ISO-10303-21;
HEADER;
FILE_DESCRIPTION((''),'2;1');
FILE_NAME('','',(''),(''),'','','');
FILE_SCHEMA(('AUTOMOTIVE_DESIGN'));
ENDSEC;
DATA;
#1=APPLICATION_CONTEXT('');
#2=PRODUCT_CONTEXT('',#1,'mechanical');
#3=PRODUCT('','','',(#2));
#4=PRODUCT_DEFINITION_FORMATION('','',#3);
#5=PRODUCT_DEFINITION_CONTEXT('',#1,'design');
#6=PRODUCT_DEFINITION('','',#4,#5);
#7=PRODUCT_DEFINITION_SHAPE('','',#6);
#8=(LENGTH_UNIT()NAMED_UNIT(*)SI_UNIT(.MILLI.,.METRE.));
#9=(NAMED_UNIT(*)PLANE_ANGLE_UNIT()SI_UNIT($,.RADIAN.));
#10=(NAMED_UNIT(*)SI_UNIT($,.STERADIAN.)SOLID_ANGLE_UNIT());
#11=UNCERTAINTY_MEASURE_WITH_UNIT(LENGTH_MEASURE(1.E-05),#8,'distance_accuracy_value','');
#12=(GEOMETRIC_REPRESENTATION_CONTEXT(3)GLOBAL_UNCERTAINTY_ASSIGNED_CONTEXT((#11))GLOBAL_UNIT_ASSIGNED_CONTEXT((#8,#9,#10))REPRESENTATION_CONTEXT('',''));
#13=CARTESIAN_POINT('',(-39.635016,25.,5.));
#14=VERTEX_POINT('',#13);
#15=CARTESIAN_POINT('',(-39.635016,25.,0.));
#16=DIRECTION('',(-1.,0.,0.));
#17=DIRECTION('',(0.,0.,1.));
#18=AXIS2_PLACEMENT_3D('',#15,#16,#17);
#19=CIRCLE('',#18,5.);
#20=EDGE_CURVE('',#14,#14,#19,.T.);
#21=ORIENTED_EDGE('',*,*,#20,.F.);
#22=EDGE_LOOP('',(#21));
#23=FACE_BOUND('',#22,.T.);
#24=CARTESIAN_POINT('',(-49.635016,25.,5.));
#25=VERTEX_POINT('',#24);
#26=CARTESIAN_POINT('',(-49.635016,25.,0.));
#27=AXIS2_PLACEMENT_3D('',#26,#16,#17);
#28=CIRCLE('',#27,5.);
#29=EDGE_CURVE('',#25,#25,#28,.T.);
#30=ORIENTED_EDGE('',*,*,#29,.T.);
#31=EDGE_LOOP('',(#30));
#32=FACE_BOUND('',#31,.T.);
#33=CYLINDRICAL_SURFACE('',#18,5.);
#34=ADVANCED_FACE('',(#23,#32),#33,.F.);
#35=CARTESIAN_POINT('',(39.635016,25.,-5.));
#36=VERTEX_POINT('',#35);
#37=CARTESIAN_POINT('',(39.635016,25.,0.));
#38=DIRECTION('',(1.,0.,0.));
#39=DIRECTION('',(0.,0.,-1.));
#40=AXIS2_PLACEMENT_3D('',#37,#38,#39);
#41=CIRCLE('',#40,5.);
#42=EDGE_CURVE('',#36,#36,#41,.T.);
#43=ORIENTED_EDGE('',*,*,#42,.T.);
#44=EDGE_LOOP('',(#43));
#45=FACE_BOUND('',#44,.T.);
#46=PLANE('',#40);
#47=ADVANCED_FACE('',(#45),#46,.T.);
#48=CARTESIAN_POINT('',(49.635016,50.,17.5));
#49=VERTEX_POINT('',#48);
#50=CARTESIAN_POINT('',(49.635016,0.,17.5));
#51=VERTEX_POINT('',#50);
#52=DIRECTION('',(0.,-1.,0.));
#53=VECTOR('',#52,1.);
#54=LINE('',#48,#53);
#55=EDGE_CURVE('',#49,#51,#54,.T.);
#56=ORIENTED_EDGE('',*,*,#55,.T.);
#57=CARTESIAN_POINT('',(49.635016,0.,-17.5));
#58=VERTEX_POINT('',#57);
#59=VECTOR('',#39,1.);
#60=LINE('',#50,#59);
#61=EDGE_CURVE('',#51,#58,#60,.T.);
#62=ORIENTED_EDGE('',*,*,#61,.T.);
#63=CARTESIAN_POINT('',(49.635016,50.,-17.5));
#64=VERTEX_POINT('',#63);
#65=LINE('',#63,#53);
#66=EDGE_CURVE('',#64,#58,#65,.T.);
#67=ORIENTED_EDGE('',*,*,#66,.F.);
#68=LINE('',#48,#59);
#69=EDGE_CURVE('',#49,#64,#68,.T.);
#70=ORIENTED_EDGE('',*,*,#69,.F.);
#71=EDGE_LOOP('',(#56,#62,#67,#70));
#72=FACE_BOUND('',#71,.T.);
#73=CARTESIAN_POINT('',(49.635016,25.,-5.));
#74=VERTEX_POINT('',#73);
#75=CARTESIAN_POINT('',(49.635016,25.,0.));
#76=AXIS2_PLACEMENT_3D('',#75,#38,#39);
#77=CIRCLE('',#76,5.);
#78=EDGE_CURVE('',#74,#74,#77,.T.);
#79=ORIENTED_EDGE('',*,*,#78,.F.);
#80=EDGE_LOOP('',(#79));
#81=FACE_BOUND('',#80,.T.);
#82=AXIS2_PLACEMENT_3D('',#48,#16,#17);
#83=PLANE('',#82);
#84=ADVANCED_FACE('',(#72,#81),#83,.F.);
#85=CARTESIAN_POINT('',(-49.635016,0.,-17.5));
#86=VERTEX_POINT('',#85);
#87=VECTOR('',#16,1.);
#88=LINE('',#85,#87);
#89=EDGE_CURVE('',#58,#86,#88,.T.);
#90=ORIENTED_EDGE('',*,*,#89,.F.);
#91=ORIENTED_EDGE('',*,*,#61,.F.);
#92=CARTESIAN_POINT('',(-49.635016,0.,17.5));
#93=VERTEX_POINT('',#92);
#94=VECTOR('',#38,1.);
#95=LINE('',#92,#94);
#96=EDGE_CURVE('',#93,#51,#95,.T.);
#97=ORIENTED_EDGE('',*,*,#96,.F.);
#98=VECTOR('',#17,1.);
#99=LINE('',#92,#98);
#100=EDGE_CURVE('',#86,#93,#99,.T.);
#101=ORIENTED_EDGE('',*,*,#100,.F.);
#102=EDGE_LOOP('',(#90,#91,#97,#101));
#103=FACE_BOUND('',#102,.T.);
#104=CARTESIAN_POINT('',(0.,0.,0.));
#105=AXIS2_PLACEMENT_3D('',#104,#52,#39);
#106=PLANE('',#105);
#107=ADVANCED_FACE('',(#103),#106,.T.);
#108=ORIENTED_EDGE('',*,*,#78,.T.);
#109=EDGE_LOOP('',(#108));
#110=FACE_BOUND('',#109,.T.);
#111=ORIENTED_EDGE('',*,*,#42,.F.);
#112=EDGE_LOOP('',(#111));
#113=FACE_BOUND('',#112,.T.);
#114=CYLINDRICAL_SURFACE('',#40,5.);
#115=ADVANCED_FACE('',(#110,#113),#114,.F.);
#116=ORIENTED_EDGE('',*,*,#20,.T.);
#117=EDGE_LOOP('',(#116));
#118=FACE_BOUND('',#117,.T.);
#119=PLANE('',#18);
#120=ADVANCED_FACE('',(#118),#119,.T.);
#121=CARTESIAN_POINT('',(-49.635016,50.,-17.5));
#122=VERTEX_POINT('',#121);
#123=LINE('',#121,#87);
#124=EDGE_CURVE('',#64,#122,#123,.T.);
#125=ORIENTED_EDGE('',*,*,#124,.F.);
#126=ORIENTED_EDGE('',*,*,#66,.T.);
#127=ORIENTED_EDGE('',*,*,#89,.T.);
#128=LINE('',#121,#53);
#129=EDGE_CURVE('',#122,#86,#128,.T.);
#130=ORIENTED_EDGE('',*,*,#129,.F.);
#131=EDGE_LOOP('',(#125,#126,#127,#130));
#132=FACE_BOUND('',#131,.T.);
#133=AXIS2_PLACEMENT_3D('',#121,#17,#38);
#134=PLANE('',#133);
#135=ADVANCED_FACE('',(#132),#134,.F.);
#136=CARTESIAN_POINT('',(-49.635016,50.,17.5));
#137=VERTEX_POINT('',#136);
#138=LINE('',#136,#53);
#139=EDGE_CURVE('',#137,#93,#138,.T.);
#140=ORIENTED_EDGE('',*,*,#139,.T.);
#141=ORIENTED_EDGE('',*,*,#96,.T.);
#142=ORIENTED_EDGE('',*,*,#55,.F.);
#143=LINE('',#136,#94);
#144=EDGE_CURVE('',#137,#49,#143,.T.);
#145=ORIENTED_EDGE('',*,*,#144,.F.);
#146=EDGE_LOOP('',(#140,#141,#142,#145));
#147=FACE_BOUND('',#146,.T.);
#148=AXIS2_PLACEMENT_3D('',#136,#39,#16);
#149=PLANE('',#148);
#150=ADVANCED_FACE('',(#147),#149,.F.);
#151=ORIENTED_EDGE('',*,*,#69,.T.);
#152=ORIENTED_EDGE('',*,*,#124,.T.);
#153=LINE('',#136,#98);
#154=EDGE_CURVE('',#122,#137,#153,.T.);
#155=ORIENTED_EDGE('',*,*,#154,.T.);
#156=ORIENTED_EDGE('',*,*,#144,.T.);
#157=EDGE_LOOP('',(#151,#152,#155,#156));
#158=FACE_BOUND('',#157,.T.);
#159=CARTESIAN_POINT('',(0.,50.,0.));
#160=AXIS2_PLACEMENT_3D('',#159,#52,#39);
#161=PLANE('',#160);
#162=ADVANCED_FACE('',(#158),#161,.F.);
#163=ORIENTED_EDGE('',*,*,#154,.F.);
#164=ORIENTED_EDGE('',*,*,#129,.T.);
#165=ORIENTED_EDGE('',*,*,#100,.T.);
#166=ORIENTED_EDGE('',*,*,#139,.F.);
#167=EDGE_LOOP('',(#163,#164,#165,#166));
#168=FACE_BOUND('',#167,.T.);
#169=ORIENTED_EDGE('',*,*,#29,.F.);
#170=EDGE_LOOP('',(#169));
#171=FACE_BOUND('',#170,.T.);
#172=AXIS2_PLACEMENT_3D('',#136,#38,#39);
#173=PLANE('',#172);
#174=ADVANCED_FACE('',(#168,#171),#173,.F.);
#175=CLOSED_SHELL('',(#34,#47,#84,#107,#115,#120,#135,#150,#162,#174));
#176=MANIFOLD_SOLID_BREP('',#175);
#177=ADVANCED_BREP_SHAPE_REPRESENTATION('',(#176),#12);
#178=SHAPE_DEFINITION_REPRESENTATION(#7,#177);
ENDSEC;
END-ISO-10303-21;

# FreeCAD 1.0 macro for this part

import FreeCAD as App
import Part
import Sketcher
from FreeCAD import Vector
Q = App.Units.Quantity


def add_polygon(sketch, points):
    """Adds a closed chain of lines whose ends are joined by coincident constraints."""
    first, n = sketch.GeometryCount, len(points)
    for a, b in zip(points, points[1:] + points[:1]):
        sketch.addGeometry(Part.LineSegment(App.Vector(*a, 0), App.Vector(*b, 0)), False)
    for i in range(n):
        sketch.addConstraint(Sketcher.Constraint("Coincident", first + i, 2, first + (i + 1) % n, 1))

doc = App.newDocument("Part")
body = doc.addObject("PartDesign::Body", "Body")

# Sketch on XZ plane
sketch1 = body.newObject("Sketcher::SketchObject", "Sketch")
sketch1.AttachmentSupport = (doc.getObject("XZ_Plane"), [""])
sketch1.MapMode = "FlatFace"
add_polygon(sketch1, [(-50, -18), (-50, 18), (50, 18), (50, -18)])  # lines 0-3
sketch1.addConstraint([
    Sketcher.Constraint("Vertical", 0),
    Sketcher.Constraint("Horizontal", 1),
    Sketcher.Constraint("Vertical", 2),
    Sketcher.Constraint("Horizontal", 3),
    Sketcher.Constraint("Symmetric", 0, 2, 2, 2, -1, 1),
    Sketcher.Constraint("DistanceY", 0, 1, 0, 2, Q("35 mm")),
    Sketcher.Constraint("DistanceX", 1, 1, 1, 2, Q("99.270033 mm")),
])
pad1 = body.newObject("PartDesign::Pad", "Pad")
pad1.Profile = sketch1
pad1.Length = 50
pad1.Reversed = True

# Sketch on YZ plane
sketch2 = body.newObject("Sketcher::SketchObject", "Sketch001")
sketch2.AttachmentSupport = (doc.getObject("YZ_Plane"), [""])
sketch2.MapMode = "FlatFace"
sketch2.AttachmentOffset = App.Placement(Vector(0, 0, -49.635016), App.Rotation())
sketch2.addGeometry(Part.Circle(Vector(25, 0, 0), Vector(0, 0, 1), 5), False)
sketch2.addConstraint([
    Sketcher.Constraint("PointOnObject", 0, 3, -1),
    Sketcher.Constraint("Diameter", 0, Q("10 mm")),
    Sketcher.Constraint("DistanceX", -1, 1, 0, 3, Q("25 mm")),
])
pocket1 = body.newObject("PartDesign::Pocket", "Pocket")
pocket1.Profile = sketch2
pocket1.Length = 10
pocket1.Reversed = True

# Sketch on YZ plane
sketch3 = body.newObject("Sketcher::SketchObject", "Sketch002")
sketch3.AttachmentSupport = (doc.getObject("YZ_Plane"), [""])
sketch3.MapMode = "FlatFace"
sketch3.AttachmentOffset = App.Placement(Vector(0, 0, 49.635016), App.Rotation())
sketch3.addGeometry(Part.Circle(Vector(25, 0, 0), Vector(0, 0, 1), 5), False)
sketch3.addConstraint([
    Sketcher.Constraint("PointOnObject", 0, 3, -1),
    Sketcher.Constraint("Diameter", 0, Q("10 mm")),
    Sketcher.Constraint("DistanceX", -1, 1, 0, 3, Q("25 mm")),
])
pocket2 = body.newObject("PartDesign::Pocket", "Pocket001")
pocket2.Profile = sketch3
pocket2.Length = 10

doc.recompute()
